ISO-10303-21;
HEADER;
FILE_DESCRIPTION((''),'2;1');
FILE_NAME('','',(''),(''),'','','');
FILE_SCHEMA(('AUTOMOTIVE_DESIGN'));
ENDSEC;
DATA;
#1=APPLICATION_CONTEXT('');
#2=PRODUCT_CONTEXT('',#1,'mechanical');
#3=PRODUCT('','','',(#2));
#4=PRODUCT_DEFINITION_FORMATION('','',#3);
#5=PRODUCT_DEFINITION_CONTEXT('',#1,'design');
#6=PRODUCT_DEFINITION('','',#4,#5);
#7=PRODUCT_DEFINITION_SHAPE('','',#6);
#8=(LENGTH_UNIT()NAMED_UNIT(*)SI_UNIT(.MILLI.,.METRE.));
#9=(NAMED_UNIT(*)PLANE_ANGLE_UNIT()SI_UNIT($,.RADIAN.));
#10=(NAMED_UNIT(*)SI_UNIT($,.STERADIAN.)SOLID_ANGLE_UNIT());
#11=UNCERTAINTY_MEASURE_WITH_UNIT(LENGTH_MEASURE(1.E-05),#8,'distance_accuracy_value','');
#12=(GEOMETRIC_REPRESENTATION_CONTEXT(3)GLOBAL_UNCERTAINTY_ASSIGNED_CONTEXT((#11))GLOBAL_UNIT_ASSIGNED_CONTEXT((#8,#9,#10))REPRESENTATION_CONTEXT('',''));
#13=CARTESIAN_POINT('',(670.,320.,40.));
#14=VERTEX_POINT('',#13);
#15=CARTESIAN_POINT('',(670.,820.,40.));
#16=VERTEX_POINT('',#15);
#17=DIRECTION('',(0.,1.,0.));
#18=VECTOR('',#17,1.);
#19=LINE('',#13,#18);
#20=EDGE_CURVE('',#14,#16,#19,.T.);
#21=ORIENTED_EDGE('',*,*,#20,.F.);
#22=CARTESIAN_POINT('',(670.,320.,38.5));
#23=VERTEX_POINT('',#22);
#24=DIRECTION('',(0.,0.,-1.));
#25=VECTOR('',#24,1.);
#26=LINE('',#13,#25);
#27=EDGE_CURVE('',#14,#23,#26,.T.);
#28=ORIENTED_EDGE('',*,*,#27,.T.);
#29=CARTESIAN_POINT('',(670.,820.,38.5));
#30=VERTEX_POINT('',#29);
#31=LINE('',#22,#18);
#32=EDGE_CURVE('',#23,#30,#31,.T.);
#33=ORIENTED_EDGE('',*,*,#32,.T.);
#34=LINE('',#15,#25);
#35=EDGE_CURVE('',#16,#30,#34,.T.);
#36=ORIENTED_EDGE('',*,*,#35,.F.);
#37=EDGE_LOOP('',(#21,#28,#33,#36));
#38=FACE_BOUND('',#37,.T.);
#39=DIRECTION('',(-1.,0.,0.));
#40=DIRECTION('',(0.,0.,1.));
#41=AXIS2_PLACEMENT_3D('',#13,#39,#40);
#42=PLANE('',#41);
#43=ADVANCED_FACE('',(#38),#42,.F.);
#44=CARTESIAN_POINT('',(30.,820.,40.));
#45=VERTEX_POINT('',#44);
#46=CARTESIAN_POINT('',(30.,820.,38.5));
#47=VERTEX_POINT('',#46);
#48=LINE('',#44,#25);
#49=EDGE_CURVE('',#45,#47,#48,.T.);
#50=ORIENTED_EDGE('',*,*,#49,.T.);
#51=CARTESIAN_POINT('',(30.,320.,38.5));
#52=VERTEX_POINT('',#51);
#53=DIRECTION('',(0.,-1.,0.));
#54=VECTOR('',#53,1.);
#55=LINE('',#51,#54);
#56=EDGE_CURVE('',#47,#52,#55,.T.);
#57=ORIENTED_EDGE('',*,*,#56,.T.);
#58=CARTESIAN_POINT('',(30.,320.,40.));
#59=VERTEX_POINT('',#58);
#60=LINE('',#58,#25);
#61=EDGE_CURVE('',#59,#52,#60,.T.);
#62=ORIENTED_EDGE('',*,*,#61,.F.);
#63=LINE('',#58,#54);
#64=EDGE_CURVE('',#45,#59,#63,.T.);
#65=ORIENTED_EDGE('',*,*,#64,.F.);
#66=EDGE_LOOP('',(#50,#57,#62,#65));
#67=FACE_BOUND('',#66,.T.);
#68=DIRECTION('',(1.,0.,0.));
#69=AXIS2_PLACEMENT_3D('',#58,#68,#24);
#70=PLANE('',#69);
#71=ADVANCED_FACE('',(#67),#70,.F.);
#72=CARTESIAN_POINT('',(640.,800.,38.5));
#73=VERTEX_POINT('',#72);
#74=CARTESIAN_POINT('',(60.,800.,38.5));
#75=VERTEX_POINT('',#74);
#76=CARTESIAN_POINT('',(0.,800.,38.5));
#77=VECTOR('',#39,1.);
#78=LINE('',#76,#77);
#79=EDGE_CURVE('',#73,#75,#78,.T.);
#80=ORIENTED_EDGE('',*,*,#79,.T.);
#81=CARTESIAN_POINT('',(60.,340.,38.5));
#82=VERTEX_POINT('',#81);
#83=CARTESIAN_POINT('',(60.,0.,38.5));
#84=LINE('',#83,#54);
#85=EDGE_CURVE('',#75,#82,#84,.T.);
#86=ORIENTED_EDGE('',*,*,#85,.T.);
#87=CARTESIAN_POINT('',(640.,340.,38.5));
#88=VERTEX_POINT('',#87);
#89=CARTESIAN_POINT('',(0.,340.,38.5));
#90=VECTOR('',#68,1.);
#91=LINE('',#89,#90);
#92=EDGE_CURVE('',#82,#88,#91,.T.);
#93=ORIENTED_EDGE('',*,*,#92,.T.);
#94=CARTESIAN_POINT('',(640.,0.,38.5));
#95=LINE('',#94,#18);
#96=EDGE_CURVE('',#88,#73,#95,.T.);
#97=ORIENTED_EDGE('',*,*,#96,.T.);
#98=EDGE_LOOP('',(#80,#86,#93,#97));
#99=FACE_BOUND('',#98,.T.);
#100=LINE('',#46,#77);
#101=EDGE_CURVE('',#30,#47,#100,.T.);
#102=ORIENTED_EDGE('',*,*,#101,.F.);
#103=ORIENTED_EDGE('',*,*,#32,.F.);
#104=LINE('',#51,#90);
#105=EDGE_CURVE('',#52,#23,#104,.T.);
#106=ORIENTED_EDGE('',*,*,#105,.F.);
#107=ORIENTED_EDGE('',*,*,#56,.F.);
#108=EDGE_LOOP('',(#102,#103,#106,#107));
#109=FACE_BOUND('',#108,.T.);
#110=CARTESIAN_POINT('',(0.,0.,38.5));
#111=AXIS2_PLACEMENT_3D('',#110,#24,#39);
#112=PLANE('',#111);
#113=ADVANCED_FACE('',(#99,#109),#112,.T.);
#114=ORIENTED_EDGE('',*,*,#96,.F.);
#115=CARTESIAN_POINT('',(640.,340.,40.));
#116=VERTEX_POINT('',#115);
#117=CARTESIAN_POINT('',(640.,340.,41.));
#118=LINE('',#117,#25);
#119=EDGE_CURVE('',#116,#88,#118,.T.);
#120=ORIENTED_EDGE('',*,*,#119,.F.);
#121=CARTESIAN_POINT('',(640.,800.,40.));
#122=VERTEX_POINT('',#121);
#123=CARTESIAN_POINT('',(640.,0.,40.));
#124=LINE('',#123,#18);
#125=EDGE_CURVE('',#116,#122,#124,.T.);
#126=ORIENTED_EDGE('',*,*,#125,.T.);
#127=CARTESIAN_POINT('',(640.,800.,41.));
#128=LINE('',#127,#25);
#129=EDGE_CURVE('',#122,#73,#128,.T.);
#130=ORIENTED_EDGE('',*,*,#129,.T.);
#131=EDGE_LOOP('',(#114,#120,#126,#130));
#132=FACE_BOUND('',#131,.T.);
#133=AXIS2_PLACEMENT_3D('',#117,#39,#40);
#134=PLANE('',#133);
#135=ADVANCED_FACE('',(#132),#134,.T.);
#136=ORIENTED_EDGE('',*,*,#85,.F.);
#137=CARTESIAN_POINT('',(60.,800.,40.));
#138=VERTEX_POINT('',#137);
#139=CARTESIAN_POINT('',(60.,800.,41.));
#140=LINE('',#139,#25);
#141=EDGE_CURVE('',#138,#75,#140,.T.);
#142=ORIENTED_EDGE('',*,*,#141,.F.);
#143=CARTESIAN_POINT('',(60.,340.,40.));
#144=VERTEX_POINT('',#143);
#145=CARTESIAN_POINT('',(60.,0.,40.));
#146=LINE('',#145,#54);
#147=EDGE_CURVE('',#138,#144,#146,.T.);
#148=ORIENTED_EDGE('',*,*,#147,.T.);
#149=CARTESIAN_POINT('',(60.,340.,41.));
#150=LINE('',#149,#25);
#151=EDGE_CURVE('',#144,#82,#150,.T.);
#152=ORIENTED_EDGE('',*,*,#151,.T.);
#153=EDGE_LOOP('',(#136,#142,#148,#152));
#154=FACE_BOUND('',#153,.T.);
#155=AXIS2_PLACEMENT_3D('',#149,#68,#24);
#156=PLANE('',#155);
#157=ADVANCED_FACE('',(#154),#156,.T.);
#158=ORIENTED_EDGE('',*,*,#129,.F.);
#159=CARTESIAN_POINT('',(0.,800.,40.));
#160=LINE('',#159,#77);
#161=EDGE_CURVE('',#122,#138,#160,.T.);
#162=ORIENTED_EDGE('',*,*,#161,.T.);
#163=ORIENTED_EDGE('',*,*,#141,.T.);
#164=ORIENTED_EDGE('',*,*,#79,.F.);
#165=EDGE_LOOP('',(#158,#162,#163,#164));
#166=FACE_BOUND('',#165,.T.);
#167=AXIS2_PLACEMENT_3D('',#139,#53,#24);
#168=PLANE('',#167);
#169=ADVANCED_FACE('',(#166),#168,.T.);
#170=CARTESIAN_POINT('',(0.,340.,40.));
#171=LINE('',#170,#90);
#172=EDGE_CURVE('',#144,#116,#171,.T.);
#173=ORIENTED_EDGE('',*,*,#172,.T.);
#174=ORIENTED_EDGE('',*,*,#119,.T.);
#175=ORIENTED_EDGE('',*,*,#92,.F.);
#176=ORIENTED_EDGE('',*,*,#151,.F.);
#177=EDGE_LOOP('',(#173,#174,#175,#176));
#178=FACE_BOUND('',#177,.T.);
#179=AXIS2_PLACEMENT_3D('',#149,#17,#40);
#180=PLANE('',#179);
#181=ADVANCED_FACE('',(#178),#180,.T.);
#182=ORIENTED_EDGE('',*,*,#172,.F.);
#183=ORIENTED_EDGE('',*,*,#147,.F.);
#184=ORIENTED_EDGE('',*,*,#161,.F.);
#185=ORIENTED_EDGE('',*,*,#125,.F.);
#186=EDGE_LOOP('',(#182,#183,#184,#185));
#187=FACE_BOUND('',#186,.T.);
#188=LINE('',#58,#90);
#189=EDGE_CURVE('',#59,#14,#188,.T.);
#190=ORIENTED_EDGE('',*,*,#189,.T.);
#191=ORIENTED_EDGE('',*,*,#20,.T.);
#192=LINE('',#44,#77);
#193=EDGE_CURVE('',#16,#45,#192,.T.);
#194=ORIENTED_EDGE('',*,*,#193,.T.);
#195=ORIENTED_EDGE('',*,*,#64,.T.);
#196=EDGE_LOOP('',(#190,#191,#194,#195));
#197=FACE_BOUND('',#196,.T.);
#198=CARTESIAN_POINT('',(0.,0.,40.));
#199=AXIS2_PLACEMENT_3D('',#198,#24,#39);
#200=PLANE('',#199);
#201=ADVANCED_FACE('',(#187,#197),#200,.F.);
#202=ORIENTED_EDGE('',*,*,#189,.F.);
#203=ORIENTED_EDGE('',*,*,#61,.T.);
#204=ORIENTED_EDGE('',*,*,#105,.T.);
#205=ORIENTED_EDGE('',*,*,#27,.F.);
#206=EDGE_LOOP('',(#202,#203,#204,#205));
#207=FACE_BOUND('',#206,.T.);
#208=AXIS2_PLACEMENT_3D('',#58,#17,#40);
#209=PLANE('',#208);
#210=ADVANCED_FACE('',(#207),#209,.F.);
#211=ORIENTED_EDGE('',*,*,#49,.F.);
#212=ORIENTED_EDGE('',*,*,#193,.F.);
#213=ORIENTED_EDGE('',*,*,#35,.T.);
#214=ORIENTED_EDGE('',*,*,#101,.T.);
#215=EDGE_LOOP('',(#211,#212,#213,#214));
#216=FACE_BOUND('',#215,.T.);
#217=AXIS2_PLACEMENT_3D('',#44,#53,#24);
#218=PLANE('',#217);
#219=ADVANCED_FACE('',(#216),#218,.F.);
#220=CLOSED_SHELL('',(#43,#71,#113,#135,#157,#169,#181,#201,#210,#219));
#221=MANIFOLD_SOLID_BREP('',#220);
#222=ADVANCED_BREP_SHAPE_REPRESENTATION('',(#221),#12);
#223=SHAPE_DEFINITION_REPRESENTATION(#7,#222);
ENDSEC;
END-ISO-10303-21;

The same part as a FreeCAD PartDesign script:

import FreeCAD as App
import Part
import Sketcher

V = App.Vector
Q = App.Units.Quantity

doc = App.newDocument("Part")
params = doc.addObject("Spreadsheet::Sheet", "Params")
for row, (alias, value) in enumerate([
    ("sketch1_width", "640 mm"),
    ("sketch1_height", "500 mm"),
    ("pad1_length", "1.5 mm"),
    ("sketch2_width", "580 mm"),
    ("sketch2_height", "460 mm"),
    ("pocket1_length", "3.5 mm"),
], start=1):
    params.set(f"A{row}", alias)
    params.set(f"B{row}", "=" + value)
    params.setAlias(f"B{row}", alias)

body = doc.addObject("PartDesign::Body", "Body")

# Sketch on XY plane
sketch1 = body.newObject("Sketcher::SketchObject", "Sketch")
sketch1.AttachmentSupport = (doc.getObject("XY_Plane"), [""])
sketch1.MapMode = "FlatFace"
sketch1.AttachmentOffset = App.Placement(V(0, 0, 38.5), App.Rotation())
sketch1.addGeometry([
    Part.LineSegment(V(30, 820, 0), V(30, 320, 0)),
    Part.LineSegment(V(30, 320, 0), V(670, 320, 0)),
    Part.LineSegment(V(670, 320, 0), V(670, 820, 0)),
    Part.LineSegment(V(670, 820, 0), V(30, 820, 0)),
], False)
sketch1.addConstraint([
    Sketcher.Constraint("Coincident", 0, 2, 1, 1),
    Sketcher.Constraint("Coincident", 1, 2, 2, 1),
    Sketcher.Constraint("Coincident", 2, 2, 3, 1),
    Sketcher.Constraint("Coincident", 3, 2, 0, 1),
    Sketcher.Constraint("Vertical", 0),
    Sketcher.Constraint("Horizontal", 1),
    Sketcher.Constraint("Vertical", 2),
    Sketcher.Constraint("Horizontal", 3),
    Sketcher.Constraint("DistanceX", 1, 1, 1, 2, Q("640 mm")),
    Sketcher.Constraint("DistanceY", 0, 2, 0, 1, Q("500 mm")),
    Sketcher.Constraint("DistanceX", -1, 1, 0, 2, Q("30 mm")),
    Sketcher.Constraint("DistanceY", -1, 1, 0, 2, Q("320 mm")),
])
sketch1.setExpression("Constraints[8]", "Params.sketch1_width")
sketch1.setExpression("Constraints[9]", "Params.sketch1_height")
pad1 = body.newObject("PartDesign::Pad", "Pad")
pad1.Profile = sketch1
pad1.setExpression("Length", "Params.pad1_length")

# Sketch on XY plane
sketch2 = body.newObject("Sketcher::SketchObject", "Sketch001")
sketch2.AttachmentSupport = (doc.getObject("XY_Plane"), [""])
sketch2.MapMode = "FlatFace"
sketch2.AttachmentOffset = App.Placement(V(0, 0, 37.5), App.Rotation())
sketch2.addGeometry([
    Part.LineSegment(V(60, 800, 0), V(60, 340, 0)),
    Part.LineSegment(V(60, 340, 0), V(640, 340, 0)),
    Part.LineSegment(V(640, 340, 0), V(640, 800, 0)),
    Part.LineSegment(V(640, 800, 0), V(60, 800, 0)),
], False)
sketch2.addConstraint([
    Sketcher.Constraint("Coincident", 0, 2, 1, 1),
    Sketcher.Constraint("Coincident", 1, 2, 2, 1),
    Sketcher.Constraint("Coincident", 2, 2, 3, 1),
    Sketcher.Constraint("Coincident", 3, 2, 0, 1),
    Sketcher.Constraint("Vertical", 0),
    Sketcher.Constraint("Horizontal", 1),
    Sketcher.Constraint("Vertical", 2),
    Sketcher.Constraint("Horizontal", 3),
    Sketcher.Constraint("DistanceX", 1, 1, 1, 2, Q("580 mm")),
    Sketcher.Constraint("DistanceY", 0, 2, 0, 1, Q("460 mm")),
    Sketcher.Constraint("DistanceX", -1, 1, 0, 2, Q("60 mm")),
    Sketcher.Constraint("DistanceY", -1, 1, 0, 2, Q("340 mm")),
])
sketch2.setExpression("Constraints[8]", "Params.sketch2_width")
sketch2.setExpression("Constraints[9]", "Params.sketch2_height")
pocket1 = body.newObject("PartDesign::Pocket", "Pocket")
pocket1.Profile = sketch2
pocket1.setExpression("Length", "Params.pocket1_length")
pocket1.Reversed = True

doc.recompute()
